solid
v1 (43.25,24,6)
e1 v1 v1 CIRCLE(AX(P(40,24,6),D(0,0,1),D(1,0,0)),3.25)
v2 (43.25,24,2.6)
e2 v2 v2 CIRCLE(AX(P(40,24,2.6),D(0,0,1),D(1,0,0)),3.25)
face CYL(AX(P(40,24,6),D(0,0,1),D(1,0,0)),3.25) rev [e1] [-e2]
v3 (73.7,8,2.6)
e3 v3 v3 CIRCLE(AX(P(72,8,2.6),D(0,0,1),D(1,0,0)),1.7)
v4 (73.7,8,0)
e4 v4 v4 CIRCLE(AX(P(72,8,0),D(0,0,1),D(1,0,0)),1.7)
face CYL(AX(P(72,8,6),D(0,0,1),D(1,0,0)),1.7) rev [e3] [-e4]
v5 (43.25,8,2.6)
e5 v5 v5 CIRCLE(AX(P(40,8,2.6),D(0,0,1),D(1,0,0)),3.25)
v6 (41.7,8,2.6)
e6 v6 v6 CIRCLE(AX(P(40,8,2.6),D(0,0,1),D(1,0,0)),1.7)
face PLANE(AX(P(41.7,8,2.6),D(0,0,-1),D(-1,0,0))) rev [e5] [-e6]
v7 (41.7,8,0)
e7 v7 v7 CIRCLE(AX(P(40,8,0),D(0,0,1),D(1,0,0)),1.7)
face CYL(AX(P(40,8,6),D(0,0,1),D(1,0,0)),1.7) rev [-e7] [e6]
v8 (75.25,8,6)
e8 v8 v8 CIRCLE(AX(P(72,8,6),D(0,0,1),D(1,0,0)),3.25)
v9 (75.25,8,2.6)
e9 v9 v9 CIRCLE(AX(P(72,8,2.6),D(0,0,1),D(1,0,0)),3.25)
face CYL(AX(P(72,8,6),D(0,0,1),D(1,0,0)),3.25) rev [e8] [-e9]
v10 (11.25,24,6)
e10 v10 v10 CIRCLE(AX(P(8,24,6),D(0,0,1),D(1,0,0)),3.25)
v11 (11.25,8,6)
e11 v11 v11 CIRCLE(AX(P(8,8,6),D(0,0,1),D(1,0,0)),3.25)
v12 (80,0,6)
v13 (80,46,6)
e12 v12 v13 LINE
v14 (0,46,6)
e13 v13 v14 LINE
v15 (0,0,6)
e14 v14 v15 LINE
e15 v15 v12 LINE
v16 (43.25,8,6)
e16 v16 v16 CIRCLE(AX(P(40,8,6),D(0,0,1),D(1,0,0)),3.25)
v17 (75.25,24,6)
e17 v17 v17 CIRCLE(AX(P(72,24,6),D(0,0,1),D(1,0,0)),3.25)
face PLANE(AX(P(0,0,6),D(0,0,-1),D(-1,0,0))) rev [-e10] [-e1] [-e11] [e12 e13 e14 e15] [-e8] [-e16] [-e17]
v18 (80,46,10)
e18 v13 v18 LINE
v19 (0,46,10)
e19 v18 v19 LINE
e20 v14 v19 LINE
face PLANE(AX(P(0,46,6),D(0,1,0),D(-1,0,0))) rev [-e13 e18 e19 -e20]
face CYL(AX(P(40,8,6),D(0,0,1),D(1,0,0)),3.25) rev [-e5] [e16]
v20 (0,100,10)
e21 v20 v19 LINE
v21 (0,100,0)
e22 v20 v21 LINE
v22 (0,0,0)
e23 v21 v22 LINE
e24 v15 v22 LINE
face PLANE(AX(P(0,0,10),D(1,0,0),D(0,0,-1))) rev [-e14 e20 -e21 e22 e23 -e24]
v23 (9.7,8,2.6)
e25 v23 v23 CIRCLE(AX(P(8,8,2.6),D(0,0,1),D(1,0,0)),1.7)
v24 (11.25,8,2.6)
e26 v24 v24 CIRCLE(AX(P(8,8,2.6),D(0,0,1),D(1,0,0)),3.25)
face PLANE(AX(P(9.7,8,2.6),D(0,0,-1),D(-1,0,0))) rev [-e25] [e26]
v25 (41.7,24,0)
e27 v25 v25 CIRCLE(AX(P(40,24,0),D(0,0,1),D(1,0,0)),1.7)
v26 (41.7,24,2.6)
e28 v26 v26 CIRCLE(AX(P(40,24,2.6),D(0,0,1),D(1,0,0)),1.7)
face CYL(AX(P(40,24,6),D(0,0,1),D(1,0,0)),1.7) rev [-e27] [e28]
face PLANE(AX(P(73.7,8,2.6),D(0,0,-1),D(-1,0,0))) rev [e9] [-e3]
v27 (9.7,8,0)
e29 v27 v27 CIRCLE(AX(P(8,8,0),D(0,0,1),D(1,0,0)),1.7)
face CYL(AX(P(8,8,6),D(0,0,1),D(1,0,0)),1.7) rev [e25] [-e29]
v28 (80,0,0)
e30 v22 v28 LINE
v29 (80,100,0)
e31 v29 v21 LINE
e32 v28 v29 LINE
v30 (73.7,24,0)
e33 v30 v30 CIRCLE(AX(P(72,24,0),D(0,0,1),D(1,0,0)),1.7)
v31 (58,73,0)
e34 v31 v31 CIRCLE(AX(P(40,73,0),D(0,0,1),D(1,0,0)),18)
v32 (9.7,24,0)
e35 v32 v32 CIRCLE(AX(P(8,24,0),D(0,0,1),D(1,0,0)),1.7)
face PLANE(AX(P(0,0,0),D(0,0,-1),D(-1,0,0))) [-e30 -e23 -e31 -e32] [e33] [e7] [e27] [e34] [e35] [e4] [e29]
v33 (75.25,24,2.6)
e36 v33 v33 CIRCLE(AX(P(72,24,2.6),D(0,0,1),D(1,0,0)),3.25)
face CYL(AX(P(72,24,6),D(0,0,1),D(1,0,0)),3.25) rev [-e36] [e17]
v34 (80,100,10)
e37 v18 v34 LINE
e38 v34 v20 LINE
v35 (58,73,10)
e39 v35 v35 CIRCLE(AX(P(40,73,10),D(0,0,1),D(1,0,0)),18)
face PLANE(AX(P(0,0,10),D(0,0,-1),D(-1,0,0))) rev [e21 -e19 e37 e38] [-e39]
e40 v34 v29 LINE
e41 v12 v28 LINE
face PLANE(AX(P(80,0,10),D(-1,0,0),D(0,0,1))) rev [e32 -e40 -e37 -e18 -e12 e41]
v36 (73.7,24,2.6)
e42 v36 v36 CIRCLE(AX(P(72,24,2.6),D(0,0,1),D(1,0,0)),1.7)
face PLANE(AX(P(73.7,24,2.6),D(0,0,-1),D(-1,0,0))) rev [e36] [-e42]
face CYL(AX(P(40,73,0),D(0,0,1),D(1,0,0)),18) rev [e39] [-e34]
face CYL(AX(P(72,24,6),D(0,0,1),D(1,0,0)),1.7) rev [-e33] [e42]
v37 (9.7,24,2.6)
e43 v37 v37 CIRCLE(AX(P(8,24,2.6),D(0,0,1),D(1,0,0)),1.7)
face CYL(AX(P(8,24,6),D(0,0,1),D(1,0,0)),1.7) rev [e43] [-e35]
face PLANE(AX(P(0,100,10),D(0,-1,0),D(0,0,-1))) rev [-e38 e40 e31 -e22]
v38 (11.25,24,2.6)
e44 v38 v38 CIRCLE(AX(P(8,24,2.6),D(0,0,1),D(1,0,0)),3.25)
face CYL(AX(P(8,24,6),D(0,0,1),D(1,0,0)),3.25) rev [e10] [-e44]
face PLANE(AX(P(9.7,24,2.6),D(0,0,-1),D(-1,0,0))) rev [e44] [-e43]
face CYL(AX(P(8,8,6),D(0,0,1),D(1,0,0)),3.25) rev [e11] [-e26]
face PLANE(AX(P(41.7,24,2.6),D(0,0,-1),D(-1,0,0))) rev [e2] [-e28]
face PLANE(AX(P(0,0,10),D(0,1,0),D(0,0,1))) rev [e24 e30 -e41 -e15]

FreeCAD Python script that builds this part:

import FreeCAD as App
import Part
import Sketcher

V = App.Vector
Q = App.Units.Quantity


def add_polygon(sketch, points):
    """Adds a closed chain of lines whose ends are joined by coincident constraints."""
    first, n = sketch.GeometryCount, len(points)
    for a, b in zip(points, points[1:] + points[:1]):
        sketch.addGeometry(Part.LineSegment(App.Vector(*a, 0), App.Vector(*b, 0)), False)
    for i in range(n):
        sketch.addConstraint(Sketcher.Constraint("Coincident", first + i, 2, first + (i + 1) % n, 1))

doc = App.newDocument("Part")
body = doc.addObject("PartDesign::Body", "Body")

sketch1 = body.newObject("Sketcher::SketchObject", "Sketch")
sketch1.AttachmentSupport = (doc.getObject("XY_Plane"), [""])
sketch1.MapMode = "FlatFace"
add_polygon(sketch1, [(0, 100), (0, 0), (80, 0), (80, 100)])
sketch1.addConstraint(Sketcher.Constraint("Vertical", 0))
sketch1.addConstraint(Sketcher.Constraint("Horizontal", 1))
sketch1.addConstraint(Sketcher.Constraint("Vertical", 2))
sketch1.addConstraint(Sketcher.Constraint("Horizontal", 3))
sketch1.addConstraint(Sketcher.Constraint("Coincident", 0, 2, -1, 1))
sketch1.addConstraint(Sketcher.Constraint("DistanceX", 1, 1, 1, 2, Q("80 mm")))
sketch1.addConstraint(Sketcher.Constraint("DistanceY", 0, 2, 0, 1, Q("100 mm")))
pad1 = body.newObject("PartDesign::Pad", "Pad")
pad1.Profile = sketch1
pad1.Length = 10

sketch2 = body.newObject("Sketcher::SketchObject", "Sketch001")
sketch2.AttachmentSupport = (doc.getObject("XY_Plane"), [""])
sketch2.MapMode = "FlatFace"
sketch2.AttachmentOffset = App.Placement(V(0, 0, 10), App.Rotation())
sketch2.addGeometry(Part.Circle(V(40, 73, 0), V(0, 0, 1), 18), False)
sketch2.addConstraint(Sketcher.Constraint("Diameter", 0, Q("36 mm")))
sketch2.addConstraint(Sketcher.Constraint("DistanceX", -1, 1, 0, 3, Q("40 mm")))
sketch2.addConstraint(Sketcher.Constraint("DistanceY", -1, 1, 0, 3, Q("73 mm")))
pocket1 = body.newObject("PartDesign::Pocket", "Pocket")
pocket1.Profile = sketch2
pocket1.Type = "ThroughAll"

sketch3 = body.newObject("Sketcher::SketchObject", "Sketch002")
sketch3.AttachmentSupport = (doc.getObject("XY_Plane"), [""])
sketch3.MapMode = "FlatFace"
sketch3.AttachmentOffset = App.Placement(V(0, 0, 10), App.Rotation())
add_polygon(sketch3, [(0, 46), (0, 0), (80, 0), (80, 46)])
sketch3.addConstraint(Sketcher.Constraint("Vertical", 0))
sketch3.addConstraint(Sketcher.Constraint("Horizontal", 1))
sketch3.addConstraint(Sketcher.Constraint("Vertical", 2))
sketch3.addConstraint(Sketcher.Constraint("Horizontal", 3))
sketch3.addConstraint(Sketcher.Constraint("Coincident", 0, 2, -1, 1))
sketch3.addConstraint(Sketcher.Constraint("DistanceX", 1, 1, 1, 2, Q("80 mm")))
sketch3.addConstraint(Sketcher.Constraint("DistanceY", 0, 2, 0, 1, Q("46 mm")))
pocket2 = body.newObject("PartDesign::Pocket", "Pocket001")
pocket2.Profile = sketch3
pocket2.Length = 4

sketch4 = body.newObject("Sketcher::SketchObject", "Sketch003")
sketch4.AttachmentSupport = (doc.getObject("XY_Plane"), [""])
sketch4.MapMode = "FlatFace"
sketch4.AttachmentOffset = App.Placement(V(0, 0, 6), App.Rotation())
sketch4.addGeometry(Part.Circle(V(8, 8, 0), V(0, 0, 1), 1.7), False)
sketch4.addGeometry(Part.Circle(V(40, 8, 0), V(0, 0, 1), 1.7), False)
sketch4.addGeometry(Part.Circle(V(72, 8, 0), V(0, 0, 1), 1.7), False)
sketch4.addGeometry(Part.Circle(V(40, 24, 0), V(0, 0, 1), 1.7), False)
sketch4.addGeometry(Part.Circle(V(72, 24, 0), V(0, 0, 1), 1.7), False)
sketch4.addGeometry(Part.Circle(V(8, 24, 0), V(0, 0, 1), 1.7), False)
sketch4.addConstraint(Sketcher.Constraint("Equal", 0, 1))
sketch4.addConstraint(Sketcher.Constraint("Equal", 1, 2))
sketch4.addConstraint(Sketcher.Constraint("Equal", 2, 3))
sketch4.addConstraint(Sketcher.Constraint("Equal", 3, 4))
sketch4.addConstraint(Sketcher.Constraint("Equal", 4, 5))
sketch4.addConstraint(Sketcher.Constraint("Horizontal", 0, 3, 1, 3))
sketch4.addConstraint(Sketcher.Constraint("Horizontal", 1, 3, 2, 3))
sketch4.addConstraint(Sketcher.Constraint("Horizontal", 3, 3, 4, 3))
sketch4.addConstraint(Sketcher.Constraint("Horizontal", 4, 3, 5, 3))
sketch4.addConstraint(Sketcher.Constraint("Vertical", 1, 3, 3, 3))
sketch4.addConstraint(Sketcher.Constraint("Vertical", 2, 3, 4, 3))
sketch4.addConstraint(Sketcher.Constraint("Vertical", 0, 3, 5, 3))
sketch4.addConstraint(Sketcher.Constraint("Diameter", 0, Q("3.4 mm")))
sketch4.addConstraint(Sketcher.Constraint("DistanceX", -1, 1, 0, 3, Q("8 mm")))
sketch4.addConstraint(Sketcher.Constraint("DistanceY", -1, 1, 0, 3, Q("8 mm")))
sketch4.addConstraint(Sketcher.Constraint("DistanceX", -1, 1, 1, 3, Q("40 mm")))
sketch4.addConstraint(Sketcher.Constraint("DistanceX", -1, 1, 2, 3, Q("72 mm")))
sketch4.addConstraint(Sketcher.Constraint("DistanceY", -1, 1, 3, 3, Q("24 mm")))
doc.recompute()
hole = body.newObject("PartDesign::Hole", "Hole")
hole.Profile = sketch4
hole.ThreadType = "None"
hole.Diameter = 3.4
hole.DepthType = "ThroughAll"
hole.HoleCutType = "Counterbore"
hole.HoleCutDiameter = 6.5
hole.HoleCutDepth = 3.4

doc.recompute()
